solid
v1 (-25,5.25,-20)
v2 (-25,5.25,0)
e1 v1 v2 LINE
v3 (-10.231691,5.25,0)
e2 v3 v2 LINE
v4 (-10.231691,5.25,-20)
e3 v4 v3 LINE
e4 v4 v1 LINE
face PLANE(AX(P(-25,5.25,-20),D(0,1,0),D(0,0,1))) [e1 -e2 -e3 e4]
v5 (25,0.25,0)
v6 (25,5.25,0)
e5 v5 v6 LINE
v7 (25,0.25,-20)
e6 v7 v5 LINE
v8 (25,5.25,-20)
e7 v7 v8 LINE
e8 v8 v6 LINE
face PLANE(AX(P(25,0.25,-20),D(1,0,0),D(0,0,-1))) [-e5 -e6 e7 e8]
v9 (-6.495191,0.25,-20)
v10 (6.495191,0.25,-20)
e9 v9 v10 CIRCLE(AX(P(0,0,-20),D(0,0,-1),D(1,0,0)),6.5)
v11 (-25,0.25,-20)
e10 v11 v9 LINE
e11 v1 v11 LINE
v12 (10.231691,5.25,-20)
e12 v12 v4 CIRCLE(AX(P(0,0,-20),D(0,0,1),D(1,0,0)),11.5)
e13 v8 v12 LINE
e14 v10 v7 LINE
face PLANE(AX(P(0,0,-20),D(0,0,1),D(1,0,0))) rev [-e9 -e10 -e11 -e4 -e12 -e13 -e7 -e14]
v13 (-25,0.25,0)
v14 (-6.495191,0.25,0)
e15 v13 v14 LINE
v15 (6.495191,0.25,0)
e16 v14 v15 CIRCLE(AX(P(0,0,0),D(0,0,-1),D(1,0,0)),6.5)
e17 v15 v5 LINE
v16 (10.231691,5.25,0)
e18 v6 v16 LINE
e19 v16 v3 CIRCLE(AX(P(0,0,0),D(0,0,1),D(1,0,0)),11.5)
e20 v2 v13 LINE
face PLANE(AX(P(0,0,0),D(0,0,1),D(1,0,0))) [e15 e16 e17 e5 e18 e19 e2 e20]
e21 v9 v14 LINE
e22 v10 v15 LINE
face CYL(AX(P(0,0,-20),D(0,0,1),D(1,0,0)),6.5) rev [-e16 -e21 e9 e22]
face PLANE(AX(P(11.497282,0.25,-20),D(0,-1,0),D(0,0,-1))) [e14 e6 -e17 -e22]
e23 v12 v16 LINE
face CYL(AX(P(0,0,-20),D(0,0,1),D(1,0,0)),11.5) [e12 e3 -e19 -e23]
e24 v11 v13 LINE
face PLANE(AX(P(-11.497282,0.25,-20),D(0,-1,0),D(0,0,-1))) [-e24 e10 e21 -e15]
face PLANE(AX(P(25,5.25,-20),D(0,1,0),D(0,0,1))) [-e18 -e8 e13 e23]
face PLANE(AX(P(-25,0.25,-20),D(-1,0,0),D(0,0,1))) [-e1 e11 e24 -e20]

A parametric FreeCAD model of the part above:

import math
import FreeCAD as App
import Part
import Sketcher
Q = App.Units.Quantity

doc = App.newDocument("Part")
body = doc.addObject("PartDesign::Body", "Body")

sketch1 = body.newObject("Sketcher::SketchObject", "Sketch")
sketch1.AttachmentSupport = (doc.getObject("XY_Plane"), [""])
sketch1.MapMode = "FlatFace"
sketch1.addGeometry(Part.LineSegment(App.Vector(-25, 0.25, 0), App.Vector(-6.495191, 0.25, 0)), False)
sketch1.addGeometry(Part.ArcOfCircle(Part.Circle(App.Vector(0, 0, 0), App.Vector(0, 0, 1), 6.5), math.radians(2.204228), math.radians(177.795772)), False)
sketch1.addGeometry(Part.LineSegment(App.Vector(6.495191, 0.25, 0), App.Vector(25, 0.25, 0)), False)
sketch1.addGeometry(Part.LineSegment(App.Vector(25, 0.25, 0), App.Vector(25, 5.25, 0)), False)
sketch1.addGeometry(Part.LineSegment(App.Vector(25, 5.25, 0), App.Vector(10.231691, 5.25, 0)), False)
sketch1.addGeometry(Part.ArcOfCircle(Part.Circle(App.Vector(0, 0, 0), App.Vector(0, 0, 1), 11.5), math.radians(27.162888), math.radians(152.837112)), False)
sketch1.addGeometry(Part.LineSegment(App.Vector(-10.231691, 5.25, 0), App.Vector(-25, 5.25, 0)), False)
sketch1.addGeometry(Part.LineSegment(App.Vector(-25, 5.25, 0), App.Vector(-25, 0.25, 0)), False)
sketch1.addConstraint(Sketcher.Constraint("Coincident", 0, 2, 1, 2))
sketch1.addConstraint(Sketcher.Constraint("Coincident", 1, 1, 2, 1))
sketch1.addConstraint(Sketcher.Constraint("Coincident", 2, 2, 3, 1))
sketch1.addConstraint(Sketcher.Constraint("Coincident", 3, 2, 4, 1))
sketch1.addConstraint(Sketcher.Constraint("Coincident", 4, 2, 5, 1))
sketch1.addConstraint(Sketcher.Constraint("Coincident", 5, 2, 6, 1))
sketch1.addConstraint(Sketcher.Constraint("Coincident", 6, 2, 7, 1))
sketch1.addConstraint(Sketcher.Constraint("Coincident", 7, 2, 0, 1))
sketch1.addConstraint(Sketcher.Constraint("Horizontal", 0))
sketch1.addConstraint(Sketcher.Constraint("Horizontal", 2))
sketch1.addConstraint(Sketcher.Constraint("Vertical", 3))
sketch1.addConstraint(Sketcher.Constraint("Horizontal", 4))
sketch1.addConstraint(Sketcher.Constraint("Horizontal", 6))
sketch1.addConstraint(Sketcher.Constraint("Vertical", 7))
sketch1.addConstraint(Sketcher.Constraint("Coincident", 1, 3, -1, 1))
sketch1.addConstraint(Sketcher.Constraint("Coincident", 5, 3, -1, 1))
sketch1.addConstraint(Sketcher.Constraint("Symmetric", 3, 2, 6, 2, -2))
sketch1.addConstraint(Sketcher.Constraint("Horizontal", 0, 2, 1, 1))
sketch1.addConstraint(Sketcher.Constraint("Radius", 1, Q("6.5 mm")))
sketch1.addConstraint(Sketcher.Constraint("Radius", 5, Q("11.5 mm")))
sketch1.addConstraint(Sketcher.Constraint("DistanceY", 3, 1, 3, 2, Q("5 mm")))
sketch1.addConstraint(Sketcher.Constraint("DistanceX", -1, 1, 2, 2, Q("25 mm")))
sketch1.addConstraint(Sketcher.Constraint("DistanceY", -1, 1, 0, 2, Q("0.25 mm")))
pad1 = body.newObject("PartDesign::Pad", "Pad")
pad1.Profile = sketch1
pad1.Length = 20
pad1.Reversed = True

doc.recompute()
